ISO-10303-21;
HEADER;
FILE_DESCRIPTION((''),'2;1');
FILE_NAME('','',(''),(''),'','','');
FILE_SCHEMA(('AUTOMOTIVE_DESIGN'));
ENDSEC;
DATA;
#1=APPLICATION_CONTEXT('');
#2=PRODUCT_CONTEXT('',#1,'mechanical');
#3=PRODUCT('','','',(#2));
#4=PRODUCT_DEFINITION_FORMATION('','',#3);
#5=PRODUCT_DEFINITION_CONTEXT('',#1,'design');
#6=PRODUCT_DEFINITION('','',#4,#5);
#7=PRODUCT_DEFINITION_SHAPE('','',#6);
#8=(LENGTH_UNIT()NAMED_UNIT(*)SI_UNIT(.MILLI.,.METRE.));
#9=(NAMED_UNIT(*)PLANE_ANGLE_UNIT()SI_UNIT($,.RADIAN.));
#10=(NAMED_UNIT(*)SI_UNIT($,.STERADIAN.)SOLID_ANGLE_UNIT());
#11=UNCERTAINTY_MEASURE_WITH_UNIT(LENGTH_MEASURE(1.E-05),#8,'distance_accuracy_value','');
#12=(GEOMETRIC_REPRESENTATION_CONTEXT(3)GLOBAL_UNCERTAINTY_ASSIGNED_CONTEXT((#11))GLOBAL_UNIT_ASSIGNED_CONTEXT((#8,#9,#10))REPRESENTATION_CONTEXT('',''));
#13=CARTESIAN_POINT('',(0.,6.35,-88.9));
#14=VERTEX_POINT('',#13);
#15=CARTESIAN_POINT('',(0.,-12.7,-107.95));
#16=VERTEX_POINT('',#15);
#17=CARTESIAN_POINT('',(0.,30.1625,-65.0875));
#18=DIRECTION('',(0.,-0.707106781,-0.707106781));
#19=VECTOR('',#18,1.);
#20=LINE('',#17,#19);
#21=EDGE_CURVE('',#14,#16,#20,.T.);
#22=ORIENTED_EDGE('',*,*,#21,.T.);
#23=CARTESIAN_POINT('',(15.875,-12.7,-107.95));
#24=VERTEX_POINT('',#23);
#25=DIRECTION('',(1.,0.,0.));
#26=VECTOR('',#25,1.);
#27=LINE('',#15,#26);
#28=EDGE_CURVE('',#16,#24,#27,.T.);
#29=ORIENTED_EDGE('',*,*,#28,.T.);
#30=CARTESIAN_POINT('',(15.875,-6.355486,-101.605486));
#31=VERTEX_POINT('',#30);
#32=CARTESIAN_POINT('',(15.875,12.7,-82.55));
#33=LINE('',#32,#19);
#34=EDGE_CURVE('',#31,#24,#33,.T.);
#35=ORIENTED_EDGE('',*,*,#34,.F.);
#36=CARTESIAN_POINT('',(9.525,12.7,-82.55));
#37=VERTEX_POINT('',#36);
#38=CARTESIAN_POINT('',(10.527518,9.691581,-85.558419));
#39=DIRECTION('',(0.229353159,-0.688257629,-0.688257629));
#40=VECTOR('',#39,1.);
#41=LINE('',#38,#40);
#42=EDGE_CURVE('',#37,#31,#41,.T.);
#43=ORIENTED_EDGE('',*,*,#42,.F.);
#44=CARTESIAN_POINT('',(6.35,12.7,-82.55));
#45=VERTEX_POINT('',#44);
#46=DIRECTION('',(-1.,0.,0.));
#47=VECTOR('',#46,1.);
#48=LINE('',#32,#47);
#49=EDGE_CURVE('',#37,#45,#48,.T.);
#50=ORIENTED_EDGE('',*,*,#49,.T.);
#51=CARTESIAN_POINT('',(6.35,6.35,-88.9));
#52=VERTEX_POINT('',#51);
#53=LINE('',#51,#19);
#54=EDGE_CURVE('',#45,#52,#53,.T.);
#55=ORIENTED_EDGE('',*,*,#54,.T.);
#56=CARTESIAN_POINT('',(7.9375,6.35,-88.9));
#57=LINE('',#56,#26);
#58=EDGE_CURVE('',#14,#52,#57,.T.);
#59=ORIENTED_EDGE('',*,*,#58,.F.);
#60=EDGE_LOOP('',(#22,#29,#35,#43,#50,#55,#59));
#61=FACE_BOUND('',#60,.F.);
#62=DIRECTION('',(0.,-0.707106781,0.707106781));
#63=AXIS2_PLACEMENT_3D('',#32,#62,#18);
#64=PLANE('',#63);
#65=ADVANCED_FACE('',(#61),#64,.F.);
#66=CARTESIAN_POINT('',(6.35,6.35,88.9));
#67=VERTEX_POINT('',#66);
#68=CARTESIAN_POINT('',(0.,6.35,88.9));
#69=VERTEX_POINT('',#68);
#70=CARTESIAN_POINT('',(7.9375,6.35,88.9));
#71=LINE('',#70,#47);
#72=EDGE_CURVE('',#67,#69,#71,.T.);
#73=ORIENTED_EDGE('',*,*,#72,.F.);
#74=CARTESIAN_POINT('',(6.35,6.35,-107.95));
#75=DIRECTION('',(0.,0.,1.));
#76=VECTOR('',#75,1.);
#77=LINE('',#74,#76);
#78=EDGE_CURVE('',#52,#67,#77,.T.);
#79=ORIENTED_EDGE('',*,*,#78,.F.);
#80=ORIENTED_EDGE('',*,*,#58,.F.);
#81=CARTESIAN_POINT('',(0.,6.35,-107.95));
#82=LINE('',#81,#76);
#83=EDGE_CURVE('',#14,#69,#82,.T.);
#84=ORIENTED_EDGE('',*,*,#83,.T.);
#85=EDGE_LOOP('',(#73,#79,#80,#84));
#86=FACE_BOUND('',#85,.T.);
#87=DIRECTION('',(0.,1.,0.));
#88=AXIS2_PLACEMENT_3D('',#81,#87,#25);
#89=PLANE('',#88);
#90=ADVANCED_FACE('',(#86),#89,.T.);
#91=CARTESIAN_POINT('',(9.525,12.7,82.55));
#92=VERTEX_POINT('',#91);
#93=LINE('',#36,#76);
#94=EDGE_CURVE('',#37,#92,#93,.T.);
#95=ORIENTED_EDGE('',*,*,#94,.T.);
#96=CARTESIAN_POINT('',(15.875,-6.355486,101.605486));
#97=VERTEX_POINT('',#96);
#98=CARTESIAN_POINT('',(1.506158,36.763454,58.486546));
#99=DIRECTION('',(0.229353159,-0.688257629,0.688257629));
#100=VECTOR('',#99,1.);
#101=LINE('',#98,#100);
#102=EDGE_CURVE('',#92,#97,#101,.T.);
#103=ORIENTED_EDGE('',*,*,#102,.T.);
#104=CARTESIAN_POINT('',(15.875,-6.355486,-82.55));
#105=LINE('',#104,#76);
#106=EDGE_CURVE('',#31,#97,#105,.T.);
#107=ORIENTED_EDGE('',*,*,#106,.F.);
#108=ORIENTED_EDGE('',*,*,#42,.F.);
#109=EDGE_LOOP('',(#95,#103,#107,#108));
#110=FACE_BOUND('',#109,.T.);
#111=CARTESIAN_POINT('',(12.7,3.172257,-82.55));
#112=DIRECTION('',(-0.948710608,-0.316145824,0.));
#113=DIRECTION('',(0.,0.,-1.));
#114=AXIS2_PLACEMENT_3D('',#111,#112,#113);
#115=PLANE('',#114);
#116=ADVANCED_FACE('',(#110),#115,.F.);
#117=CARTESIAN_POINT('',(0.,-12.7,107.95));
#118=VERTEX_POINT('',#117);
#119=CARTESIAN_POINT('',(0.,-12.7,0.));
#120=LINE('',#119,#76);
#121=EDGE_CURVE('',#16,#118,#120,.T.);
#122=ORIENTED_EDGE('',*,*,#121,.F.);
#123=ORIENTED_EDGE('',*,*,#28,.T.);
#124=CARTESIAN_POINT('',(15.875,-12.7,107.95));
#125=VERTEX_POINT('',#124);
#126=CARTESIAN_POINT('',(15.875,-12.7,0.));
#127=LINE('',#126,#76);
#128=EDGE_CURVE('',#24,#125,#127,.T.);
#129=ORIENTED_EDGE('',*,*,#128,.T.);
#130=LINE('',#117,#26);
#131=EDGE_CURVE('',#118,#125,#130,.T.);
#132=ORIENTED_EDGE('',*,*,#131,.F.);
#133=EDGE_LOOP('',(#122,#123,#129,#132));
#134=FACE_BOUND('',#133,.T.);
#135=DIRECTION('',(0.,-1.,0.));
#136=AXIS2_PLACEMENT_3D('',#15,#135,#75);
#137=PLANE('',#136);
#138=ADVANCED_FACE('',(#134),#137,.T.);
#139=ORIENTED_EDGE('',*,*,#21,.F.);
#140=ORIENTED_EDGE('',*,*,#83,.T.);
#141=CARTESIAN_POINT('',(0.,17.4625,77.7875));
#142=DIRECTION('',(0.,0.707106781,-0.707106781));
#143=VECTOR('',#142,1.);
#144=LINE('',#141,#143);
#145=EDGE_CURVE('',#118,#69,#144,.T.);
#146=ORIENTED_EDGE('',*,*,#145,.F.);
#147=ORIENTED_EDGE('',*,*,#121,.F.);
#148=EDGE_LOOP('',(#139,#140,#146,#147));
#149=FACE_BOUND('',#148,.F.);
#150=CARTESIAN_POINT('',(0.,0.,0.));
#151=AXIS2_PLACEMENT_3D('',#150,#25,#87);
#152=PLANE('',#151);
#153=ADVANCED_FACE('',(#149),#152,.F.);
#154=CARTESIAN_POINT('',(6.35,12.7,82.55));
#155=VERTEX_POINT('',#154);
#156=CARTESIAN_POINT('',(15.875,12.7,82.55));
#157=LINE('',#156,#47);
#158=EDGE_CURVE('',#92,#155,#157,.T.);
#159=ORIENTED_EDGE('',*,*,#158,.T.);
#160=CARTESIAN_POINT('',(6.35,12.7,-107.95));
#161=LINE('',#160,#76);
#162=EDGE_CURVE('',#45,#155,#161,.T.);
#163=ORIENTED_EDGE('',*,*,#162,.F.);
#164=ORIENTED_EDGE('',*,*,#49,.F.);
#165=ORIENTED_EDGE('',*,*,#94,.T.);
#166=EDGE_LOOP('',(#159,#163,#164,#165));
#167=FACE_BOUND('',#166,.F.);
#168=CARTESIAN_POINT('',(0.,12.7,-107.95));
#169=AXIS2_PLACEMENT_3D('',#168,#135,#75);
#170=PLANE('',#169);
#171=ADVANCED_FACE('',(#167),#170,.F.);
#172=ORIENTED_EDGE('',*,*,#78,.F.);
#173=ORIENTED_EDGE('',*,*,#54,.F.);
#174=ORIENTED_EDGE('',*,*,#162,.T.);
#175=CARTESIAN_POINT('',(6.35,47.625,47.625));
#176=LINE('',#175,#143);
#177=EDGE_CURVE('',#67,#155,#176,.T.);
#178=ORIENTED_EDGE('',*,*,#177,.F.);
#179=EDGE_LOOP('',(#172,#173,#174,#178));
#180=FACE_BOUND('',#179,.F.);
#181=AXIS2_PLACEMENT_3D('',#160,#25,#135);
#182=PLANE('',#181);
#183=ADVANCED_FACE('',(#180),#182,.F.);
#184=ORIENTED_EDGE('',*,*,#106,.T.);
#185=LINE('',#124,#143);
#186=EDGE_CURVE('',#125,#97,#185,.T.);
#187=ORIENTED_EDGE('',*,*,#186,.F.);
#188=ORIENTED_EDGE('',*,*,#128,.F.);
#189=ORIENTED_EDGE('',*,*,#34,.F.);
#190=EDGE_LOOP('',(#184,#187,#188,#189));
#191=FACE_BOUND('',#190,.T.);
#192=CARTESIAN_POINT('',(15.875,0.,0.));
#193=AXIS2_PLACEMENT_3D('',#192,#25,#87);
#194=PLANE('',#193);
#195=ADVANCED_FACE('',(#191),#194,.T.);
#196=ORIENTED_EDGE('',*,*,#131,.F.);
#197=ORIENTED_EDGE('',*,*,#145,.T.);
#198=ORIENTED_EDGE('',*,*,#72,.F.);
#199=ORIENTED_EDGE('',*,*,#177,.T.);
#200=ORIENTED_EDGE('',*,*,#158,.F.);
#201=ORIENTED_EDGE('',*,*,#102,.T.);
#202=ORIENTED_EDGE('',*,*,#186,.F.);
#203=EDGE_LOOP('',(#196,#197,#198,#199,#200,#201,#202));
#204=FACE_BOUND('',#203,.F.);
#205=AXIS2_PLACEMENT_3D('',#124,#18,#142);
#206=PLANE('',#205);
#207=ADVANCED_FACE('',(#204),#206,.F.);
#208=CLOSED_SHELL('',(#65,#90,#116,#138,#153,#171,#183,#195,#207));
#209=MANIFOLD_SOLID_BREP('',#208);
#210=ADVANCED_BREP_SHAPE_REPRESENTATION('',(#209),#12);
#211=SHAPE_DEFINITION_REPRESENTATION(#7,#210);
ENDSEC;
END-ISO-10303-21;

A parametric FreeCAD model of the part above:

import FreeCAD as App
import Part
import Sketcher
from FreeCAD import Vector
Q = App.Units.Quantity


def edges_at(feature, points):
    """Names of the edges that pass closest to the given points."""
    edges = feature.Shape.Edges
    near = lambda p: min(range(len(edges)), key=lambda i: edges[i].distToShape(Part.Vertex(*p))[0])
    return sorted({f"Edge{near(p) + 1}" for p in points})


def add_polygon(sketch, points):
    """Adds a closed chain of lines whose ends are joined by coincident constraints."""
    first, n = sketch.GeometryCount, len(points)
    for a, b in zip(points, points[1:] + points[:1]):
        sketch.addGeometry(Part.LineSegment(App.Vector(*a, 0), App.Vector(*b, 0)), False)
    for i in range(n):
        sketch.addConstraint(Sketcher.Constraint("Coincident", first + i, 2, first + (i + 1) % n, 1))

doc = App.newDocument("Part")
body = doc.addObject("PartDesign::Body", "Body")

# Sketch on YZ plane
sketch1 = body.newObject("Sketcher::SketchObject", "Sketch")
sketch1.AttachmentSupport = (doc.getObject("YZ_Plane"), [""])
sketch1.MapMode = "FlatFace"
add_polygon(sketch1, [(-13, 108), (-13, -108), (13, -108), (13, 108)])  # lines 0-3
sketch1.addConstraint(Sketcher.Constraint("Vertical", 0))
sketch1.addConstraint(Sketcher.Constraint("Horizontal", 1))
sketch1.addConstraint(Sketcher.Constraint("Vertical", 2))
sketch1.addConstraint(Sketcher.Constraint("Horizontal", 3))
sketch1.addConstraint(Sketcher.Constraint("Symmetric", 0, 2, 2, 2, -1, 1))
sketch1.addConstraint(Sketcher.Constraint("DistanceX", 1, 1, 1, 2, Q("1 in")))
sketch1.addConstraint(Sketcher.Constraint("DistanceY", 0, 2, 0, 1, Q("8.5 in")))
pad1 = body.newObject("PartDesign::Pad", "Pad")
pad1.Profile = sketch1
pad1.Length = Q("0.625 in")

# Sketch on XY plane
sketch2 = body.newObject("Sketcher::SketchObject", "Sketch001")
sketch2.AttachmentSupport = (doc.getObject("XY_Plane"), [""])
sketch2.MapMode = "FlatFace"
sketch2.AttachmentOffset = App.Placement(Vector(0, 0, -4.25 * 25.4), App.Rotation())
add_polygon(sketch2, [(0, 6), (0, 13), (6, 13), (6, 6)])  # lines 0-3
sketch2.addConstraint(Sketcher.Constraint("Vertical", 0))
sketch2.addConstraint(Sketcher.Constraint("Horizontal", 1))
sketch2.addConstraint(Sketcher.Constraint("Vertical", 2))
sketch2.addConstraint(Sketcher.Constraint("Horizontal", 3))
sketch2.addConstraint(Sketcher.Constraint("PointOnObject", 0, 2, -2))
sketch2.addConstraint(Sketcher.Constraint("Equal", 3, 0))
sketch2.addConstraint(Sketcher.Constraint("DistanceX", 1, 1, 1, 2, Q("0.25 in")))
sketch2.addConstraint(Sketcher.Constraint("DistanceY", -1, 1, 0, 2, Q("0.5 in")))
pocket1 = body.newObject("PartDesign::Pocket", "Pocket")
pocket1.Profile = sketch2
pocket1.Type = "ThroughAll"
pocket1.Reversed = True

# Sketch on YZ plane
sketch3 = body.newObject("Sketcher::SketchObject", "Sketch002")
sketch3.AttachmentSupport = (doc.getObject("YZ_Plane"), [""])
sketch3.MapMode = "FlatFace"
sketch3.AttachmentOffset = App.Placement(Vector(0, 0, 0.625 * 25.4), App.Rotation())
add_polygon(sketch3, [(13, 108), (-13, 108), (13, 83)])  # lines 0-2
add_polygon(sketch3, [(13, -83), (-13, -108), (13, -108)])  # lines 3-5
sketch3.addConstraint(Sketcher.Constraint("Horizontal", 0))
sketch3.addConstraint(Sketcher.Constraint("Vertical", 2))
sketch3.addConstraint(Sketcher.Constraint("Horizontal", 4))
sketch3.addConstraint(Sketcher.Constraint("Vertical", 5))
sketch3.addConstraint(Sketcher.Constraint("Symmetric", 2, 2, 3, 2, -1, 1))
sketch3.addConstraint(Sketcher.Constraint("Symmetric", 1, 2, 5, 2, -1))
sketch3.addConstraint(Sketcher.Constraint("Perpendicular", 1, 3))
sketch3.addConstraint(Sketcher.Constraint("Vertical", 0, 2, 3, 2))
sketch3.addConstraint(Sketcher.Constraint("DistanceX", 0, 2, 0, 1, Q("1 in")))
sketch3.addConstraint(Sketcher.Constraint("DistanceY", 3, 2, 1, 2, Q("7.5 in")))
pocket2 = body.newObject("PartDesign::Pocket", "Pocket001")
pocket2.Profile = sketch3
pocket2.Type = "ThroughAll"
doc.recompute()

chamfer = body.newObject("PartDesign::Chamfer", "Chamfer")
chamfer.Base = (pocket2, edges_at(pocket2, [(15.875, 12.7, 0)]))
chamfer.ChamferType = "Two distances"
chamfer.Size = Q("0.25 in")
chamfer.Size2 = 19.055486
chamfer.FlipDirection = True

doc.recompute()
